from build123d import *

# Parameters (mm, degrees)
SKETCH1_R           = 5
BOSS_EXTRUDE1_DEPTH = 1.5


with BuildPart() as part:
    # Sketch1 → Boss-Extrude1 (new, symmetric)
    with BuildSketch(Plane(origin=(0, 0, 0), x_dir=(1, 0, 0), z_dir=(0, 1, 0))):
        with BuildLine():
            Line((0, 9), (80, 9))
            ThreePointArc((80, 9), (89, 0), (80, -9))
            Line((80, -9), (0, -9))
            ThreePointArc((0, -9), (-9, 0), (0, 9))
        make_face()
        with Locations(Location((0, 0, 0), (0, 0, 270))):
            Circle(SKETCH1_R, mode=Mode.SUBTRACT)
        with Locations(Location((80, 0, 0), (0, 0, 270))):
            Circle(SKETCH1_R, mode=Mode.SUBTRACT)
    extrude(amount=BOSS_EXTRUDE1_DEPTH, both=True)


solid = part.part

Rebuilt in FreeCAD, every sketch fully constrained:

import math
import FreeCAD as App
import Part
import Sketcher

doc = App.newDocument("Part")
body = doc.addObject("PartDesign::Body", "Body")

sketch1 = body.newObject("Sketcher::SketchObject", "Sketch")
sketch1.AttachmentSupport = (doc.getObject("XZ_Plane"), [""])
sketch1.MapMode = "FlatFace"
sketch1.addGeometry(Part.LineSegment(App.Vector(80, -9, 0), App.Vector(0, -9, 0)), False)
sketch1.addGeometry(Part.ArcOfCircle(Part.Circle(App.Vector(0, 0, 0), App.Vector(0, 0, 1), 9), math.radians(90), math.radians(270)), False)
sketch1.addGeometry(Part.LineSegment(App.Vector(0, 9, 0), App.Vector(80, 9, 0)), False)
sketch1.addGeometry(Part.ArcOfCircle(Part.Circle(App.Vector(80, 0, 0), App.Vector(0, 0, 1), 9), math.radians(-90), math.radians(90)), False)
sketch1.addGeometry(Part.Circle(App.Vector(80, 0, 0), App.Vector(0, 0, 1), 5), False)
sketch1.addGeometry(Part.Circle(App.Vector(0, 0, 0), App.Vector(0, 0, 1), 5), False)
sketch1.addConstraint(Sketcher.Constraint("Tangent", 0, 2, 1, 2))
sketch1.addConstraint(Sketcher.Constraint("Tangent", 1, 1, 2, 1))
sketch1.addConstraint(Sketcher.Constraint("Tangent", 2, 2, 3, 2))
sketch1.addConstraint(Sketcher.Constraint("Tangent", 3, 1, 0, 1))
sketch1.addConstraint(Sketcher.Constraint("Horizontal", 0))
sketch1.addConstraint(Sketcher.Constraint("Horizontal", 2))
sketch1.addConstraint(Sketcher.Constraint("Coincident", 1, 3, -1, 1))
sketch1.addConstraint(Sketcher.Constraint("Coincident", 5, 3, -1, 1))
sketch1.addConstraint(Sketcher.Constraint("Coincident", 4, 3, 3, 3))
sketch1.addConstraint(Sketcher.Constraint("Equal", 4, 5))
sketch1.addConstraint(Sketcher.Constraint("Diameter", 4, 10.0))
sketch1.addConstraint(Sketcher.Constraint("Radius", 1, 9.0))
sketch1.addConstraint(Sketcher.Constraint("DistanceX", 0, 2, 0, 1, 80.0))
pad1 = body.newObject("PartDesign::Pad", "Pad")
pad1.Profile = sketch1
pad1.Length = 3
pad1.Midplane = True

doc.recompute()
